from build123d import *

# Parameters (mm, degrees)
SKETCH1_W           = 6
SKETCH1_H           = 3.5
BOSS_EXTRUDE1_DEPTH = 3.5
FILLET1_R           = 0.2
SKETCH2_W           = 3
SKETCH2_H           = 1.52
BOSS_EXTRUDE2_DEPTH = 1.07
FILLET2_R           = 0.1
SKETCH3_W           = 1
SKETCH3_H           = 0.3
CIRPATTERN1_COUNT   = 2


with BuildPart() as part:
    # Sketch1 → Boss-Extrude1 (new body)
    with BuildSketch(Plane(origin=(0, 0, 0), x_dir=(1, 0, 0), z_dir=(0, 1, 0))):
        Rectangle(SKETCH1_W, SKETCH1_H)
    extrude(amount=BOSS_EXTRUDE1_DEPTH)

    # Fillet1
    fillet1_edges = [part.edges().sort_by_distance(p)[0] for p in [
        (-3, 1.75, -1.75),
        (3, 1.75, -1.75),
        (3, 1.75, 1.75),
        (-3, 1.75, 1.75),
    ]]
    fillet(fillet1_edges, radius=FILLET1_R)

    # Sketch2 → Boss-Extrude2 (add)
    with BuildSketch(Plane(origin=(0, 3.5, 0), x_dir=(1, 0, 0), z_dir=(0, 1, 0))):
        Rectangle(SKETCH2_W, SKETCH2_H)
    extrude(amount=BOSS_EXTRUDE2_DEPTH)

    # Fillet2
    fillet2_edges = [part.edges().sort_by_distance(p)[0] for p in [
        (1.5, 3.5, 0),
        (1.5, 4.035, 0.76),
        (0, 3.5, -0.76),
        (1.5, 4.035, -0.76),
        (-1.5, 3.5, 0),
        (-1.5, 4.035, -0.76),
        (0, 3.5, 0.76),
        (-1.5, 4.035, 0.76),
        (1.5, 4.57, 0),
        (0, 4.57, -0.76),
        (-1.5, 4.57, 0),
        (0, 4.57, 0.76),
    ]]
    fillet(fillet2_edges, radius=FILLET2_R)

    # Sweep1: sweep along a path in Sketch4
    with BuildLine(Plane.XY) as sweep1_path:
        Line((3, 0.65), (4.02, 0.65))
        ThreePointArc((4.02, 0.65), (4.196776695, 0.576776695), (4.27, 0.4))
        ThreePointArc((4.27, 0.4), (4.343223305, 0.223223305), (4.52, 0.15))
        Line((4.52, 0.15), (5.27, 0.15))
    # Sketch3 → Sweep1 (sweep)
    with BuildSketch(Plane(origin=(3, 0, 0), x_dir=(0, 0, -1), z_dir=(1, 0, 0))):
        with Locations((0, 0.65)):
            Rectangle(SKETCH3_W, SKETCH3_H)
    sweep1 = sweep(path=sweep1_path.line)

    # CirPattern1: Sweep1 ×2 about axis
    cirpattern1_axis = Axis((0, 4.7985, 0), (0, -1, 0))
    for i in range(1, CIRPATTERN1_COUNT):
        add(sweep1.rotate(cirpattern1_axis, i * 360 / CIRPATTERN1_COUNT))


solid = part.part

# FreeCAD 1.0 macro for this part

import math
import FreeCAD as App
import Part
import Sketcher

V = App.Vector
Q = App.Units.Quantity


def edges_at(feature, points):
    """Names of the edges that pass closest to the given points."""
    edges = feature.Shape.Edges
    near = lambda p: min(range(len(edges)), key=lambda i: edges[i].distToShape(Part.Vertex(*p))[0])
    return sorted({f"Edge{near(p) + 1}" for p in points})


def add_polygon(sketch, points):
    """Adds a closed chain of lines whose ends are joined by coincident constraints."""
    first, n = sketch.GeometryCount, len(points)
    for a, b in zip(points, points[1:] + points[:1]):
        sketch.addGeometry(Part.LineSegment(App.Vector(*a, 0), App.Vector(*b, 0)), False)
    for i in range(n):
        sketch.addConstraint(Sketcher.Constraint("Coincident", first + i, 2, first + (i + 1) % n, 1))

doc = App.newDocument("Part")
body = doc.addObject("PartDesign::Body", "Body")

sketch1 = doc.addObject("Sketcher::SketchObject", "Sketch")
body.addObject(sketch1)
sketch1.AttachmentSupport = (doc.XZ_Plane, [""])
sketch1.MapMode = "FlatFace"
add_polygon(sketch1, [(-3, -1.8), (-3, 1.8), (3, 1.8), (3, -1.8)])
sketch1.addConstraint([
    Sketcher.Constraint("Vertical", 0),
    Sketcher.Constraint("Horizontal", 1),
    Sketcher.Constraint("Vertical", 2),
    Sketcher.Constraint("Horizontal", 3),
    Sketcher.Constraint("Symmetric", 0, 2, 2, 2, -1, 1),
    Sketcher.Constraint("DistanceX", 1, 1, 1, 2, Q("6 mm")),
    Sketcher.Constraint("DistanceY", 0, 1, 0, 2, Q("3.5 mm")),
])
pad1 = doc.addObject("PartDesign::Pad", "Pad")
body.addObject(pad1)
pad1.Profile = sketch1
pad1.Length = 3.5
pad1.Reversed = True
doc.recompute()

fillet = doc.addObject("PartDesign::Fillet", "Fillet")
body.addObject(fillet)
fillet.Base = (pad1, edges_at(pad1, [
    (-3, 1.75, -1.75),
    (3, 1.75, -1.75),
    (3, 1.75, 1.75),
    (-3, 1.75, 1.75),
]))
fillet.Radius = 0.2

sketch2 = doc.addObject("Sketcher::SketchObject", "Sketch001")
body.addObject(sketch2)
sketch2.AttachmentSupport = (doc.XZ_Plane, [""])
sketch2.MapMode = "FlatFace"
sketch2.AttachmentOffset = App.Placement(V(0, 0, -3.5), App.Rotation())
add_polygon(sketch2, [(-1.5, -0.8), (-1.5, 0.8), (1.5, 0.8), (1.5, -0.8)])
sketch2.addConstraint([
    Sketcher.Constraint("Vertical", 0),
    Sketcher.Constraint("Horizontal", 1),
    Sketcher.Constraint("Vertical", 2),
    Sketcher.Constraint("Horizontal", 3),
    Sketcher.Constraint("Symmetric", 0, 2, 2, 2, -1, 1),
    Sketcher.Constraint("DistanceX", 1, 1, 1, 2, Q("3 mm")),
    Sketcher.Constraint("DistanceY", 0, 1, 0, 2, Q("1.52 mm")),
])
pad2 = doc.addObject("PartDesign::Pad", "Pad001")
body.addObject(pad2)
pad2.Profile = sketch2
pad2.Length = 1.07
pad2.Reversed = True
doc.recompute()

fillet2 = doc.addObject("PartDesign::Fillet", "Fillet001")
body.addObject(fillet2)
fillet2.Base = (pad2, edges_at(pad2, [
    (1.5, 3.5, 0),
    (1.5, 4.035, 0.76),
    (0, 3.5, -0.76),
    (1.5, 4.035, -0.76),
    (-1.5, 3.5, 0),
    (-1.5, 4.035, -0.76),
    (0, 3.5, 0.76),
    (-1.5, 4.035, 0.76),
    (1.5, 4.57, 0),
    (0, 4.57, -0.76),
    (-1.5, 4.57, 0),
    (0, 4.57, 0.76),
]))
fillet2.Radius = 0.1

sketch3 = doc.addObject("Sketcher::SketchObject", "Sketch002")
body.addObject(sketch3)
sketch3.AttachmentSupport = (doc.YZ_Plane, [""])
sketch3.MapMode = "FlatFace"
sketch3.AttachmentOffset = App.Placement(V(0, 0, 3), App.Rotation())
add_polygon(sketch3, [(0.8, 0.5), (0.5, 0.5), (0.5, -0.5), (0.8, -0.5)])
sketch3.addConstraint([
    Sketcher.Constraint("Horizontal", 0),
    Sketcher.Constraint("Vertical", 1),
    Sketcher.Constraint("Horizontal", 2),
    Sketcher.Constraint("Vertical", 3),
    Sketcher.Constraint("DistanceY", 1, 2, 1, 1, Q("1 mm")),
    Sketcher.Constraint("DistanceX", 0, 2, 0, 1, Q("0.3 mm")),
    Sketcher.Constraint("DistanceX", -1, 1, 0, 2, Q("0.5 mm")),
    Sketcher.Constraint("DistanceY", -1, 1, 0, 2, Q("0.5 mm")),
])

sketch4 = doc.addObject("Sketcher::SketchObject", "Sketch003")
body.addObject(sketch4)
sketch4.AttachmentSupport = (doc.XY_Plane, [""])
sketch4.MapMode = "FlatFace"
sketch4.addGeometry([
    Part.LineSegment(V(3, 0.65, 0), V(4.02, 0.65, 0)),
    Part.ArcOfCircle(Part.Circle(V(4.02, 0.4, 0), V(0, 0, 1), 0.25), math.radians(0), math.radians(90)),
    Part.ArcOfCircle(Part.Circle(V(4.52, 0.4, 0), V(0, 0, 1), 0.25), math.radians(-180), math.radians(-90)),
    Part.LineSegment(V(4.52, 0.15, 0), V(5.27, 0.15, 0)),
], False)
sketch4.addConstraint([
    Sketcher.Constraint("Tangent", 0, 2, 1, 2),
    Sketcher.Constraint("Tangent", 1, 1, 2, 1),
    Sketcher.Constraint("Tangent", 2, 2, 3, 1),
    Sketcher.Constraint("Horizontal", 0),
    Sketcher.Constraint("Horizontal", 3),
    Sketcher.Constraint("Equal", 1, 2),
    Sketcher.Constraint("Horizontal", 1, 3, 2, 3),
    Sketcher.Constraint("Radius", 1, Q("0.25 mm")),
    Sketcher.Constraint("DistanceX", -1, 1, 0, 1, Q("3 mm")),
    Sketcher.Constraint("DistanceX", 1, 1, 3, 2, Q("1 mm")),
    Sketcher.Constraint("DistanceX", 0, 1, 0, 2, Q("1.02 mm")),
    Sketcher.Constraint("DistanceY", -1, 1, 1, 3, Q("0.4 mm")),
])
doc.recompute()

additivepipe = doc.addObject("PartDesign::AdditivePipe", "AdditivePipe")
body.addObject(additivepipe)
additivepipe.Profile = sketch3
additivepipe.Spine = (sketch4, ["Edge1", "Edge2", "Edge3", "Edge4"])
doc.recompute()

polarpattern = doc.addObject("PartDesign::PolarPattern", "PolarPattern")
body.addObject(polarpattern)
polarpattern.Originals = [additivepipe]
polarpattern.Axis = (doc.Y_Axis, [""])
polarpattern.Angle = 360
polarpattern.Occurrences = 2
body.Tip = polarpattern

doc.recompute()
